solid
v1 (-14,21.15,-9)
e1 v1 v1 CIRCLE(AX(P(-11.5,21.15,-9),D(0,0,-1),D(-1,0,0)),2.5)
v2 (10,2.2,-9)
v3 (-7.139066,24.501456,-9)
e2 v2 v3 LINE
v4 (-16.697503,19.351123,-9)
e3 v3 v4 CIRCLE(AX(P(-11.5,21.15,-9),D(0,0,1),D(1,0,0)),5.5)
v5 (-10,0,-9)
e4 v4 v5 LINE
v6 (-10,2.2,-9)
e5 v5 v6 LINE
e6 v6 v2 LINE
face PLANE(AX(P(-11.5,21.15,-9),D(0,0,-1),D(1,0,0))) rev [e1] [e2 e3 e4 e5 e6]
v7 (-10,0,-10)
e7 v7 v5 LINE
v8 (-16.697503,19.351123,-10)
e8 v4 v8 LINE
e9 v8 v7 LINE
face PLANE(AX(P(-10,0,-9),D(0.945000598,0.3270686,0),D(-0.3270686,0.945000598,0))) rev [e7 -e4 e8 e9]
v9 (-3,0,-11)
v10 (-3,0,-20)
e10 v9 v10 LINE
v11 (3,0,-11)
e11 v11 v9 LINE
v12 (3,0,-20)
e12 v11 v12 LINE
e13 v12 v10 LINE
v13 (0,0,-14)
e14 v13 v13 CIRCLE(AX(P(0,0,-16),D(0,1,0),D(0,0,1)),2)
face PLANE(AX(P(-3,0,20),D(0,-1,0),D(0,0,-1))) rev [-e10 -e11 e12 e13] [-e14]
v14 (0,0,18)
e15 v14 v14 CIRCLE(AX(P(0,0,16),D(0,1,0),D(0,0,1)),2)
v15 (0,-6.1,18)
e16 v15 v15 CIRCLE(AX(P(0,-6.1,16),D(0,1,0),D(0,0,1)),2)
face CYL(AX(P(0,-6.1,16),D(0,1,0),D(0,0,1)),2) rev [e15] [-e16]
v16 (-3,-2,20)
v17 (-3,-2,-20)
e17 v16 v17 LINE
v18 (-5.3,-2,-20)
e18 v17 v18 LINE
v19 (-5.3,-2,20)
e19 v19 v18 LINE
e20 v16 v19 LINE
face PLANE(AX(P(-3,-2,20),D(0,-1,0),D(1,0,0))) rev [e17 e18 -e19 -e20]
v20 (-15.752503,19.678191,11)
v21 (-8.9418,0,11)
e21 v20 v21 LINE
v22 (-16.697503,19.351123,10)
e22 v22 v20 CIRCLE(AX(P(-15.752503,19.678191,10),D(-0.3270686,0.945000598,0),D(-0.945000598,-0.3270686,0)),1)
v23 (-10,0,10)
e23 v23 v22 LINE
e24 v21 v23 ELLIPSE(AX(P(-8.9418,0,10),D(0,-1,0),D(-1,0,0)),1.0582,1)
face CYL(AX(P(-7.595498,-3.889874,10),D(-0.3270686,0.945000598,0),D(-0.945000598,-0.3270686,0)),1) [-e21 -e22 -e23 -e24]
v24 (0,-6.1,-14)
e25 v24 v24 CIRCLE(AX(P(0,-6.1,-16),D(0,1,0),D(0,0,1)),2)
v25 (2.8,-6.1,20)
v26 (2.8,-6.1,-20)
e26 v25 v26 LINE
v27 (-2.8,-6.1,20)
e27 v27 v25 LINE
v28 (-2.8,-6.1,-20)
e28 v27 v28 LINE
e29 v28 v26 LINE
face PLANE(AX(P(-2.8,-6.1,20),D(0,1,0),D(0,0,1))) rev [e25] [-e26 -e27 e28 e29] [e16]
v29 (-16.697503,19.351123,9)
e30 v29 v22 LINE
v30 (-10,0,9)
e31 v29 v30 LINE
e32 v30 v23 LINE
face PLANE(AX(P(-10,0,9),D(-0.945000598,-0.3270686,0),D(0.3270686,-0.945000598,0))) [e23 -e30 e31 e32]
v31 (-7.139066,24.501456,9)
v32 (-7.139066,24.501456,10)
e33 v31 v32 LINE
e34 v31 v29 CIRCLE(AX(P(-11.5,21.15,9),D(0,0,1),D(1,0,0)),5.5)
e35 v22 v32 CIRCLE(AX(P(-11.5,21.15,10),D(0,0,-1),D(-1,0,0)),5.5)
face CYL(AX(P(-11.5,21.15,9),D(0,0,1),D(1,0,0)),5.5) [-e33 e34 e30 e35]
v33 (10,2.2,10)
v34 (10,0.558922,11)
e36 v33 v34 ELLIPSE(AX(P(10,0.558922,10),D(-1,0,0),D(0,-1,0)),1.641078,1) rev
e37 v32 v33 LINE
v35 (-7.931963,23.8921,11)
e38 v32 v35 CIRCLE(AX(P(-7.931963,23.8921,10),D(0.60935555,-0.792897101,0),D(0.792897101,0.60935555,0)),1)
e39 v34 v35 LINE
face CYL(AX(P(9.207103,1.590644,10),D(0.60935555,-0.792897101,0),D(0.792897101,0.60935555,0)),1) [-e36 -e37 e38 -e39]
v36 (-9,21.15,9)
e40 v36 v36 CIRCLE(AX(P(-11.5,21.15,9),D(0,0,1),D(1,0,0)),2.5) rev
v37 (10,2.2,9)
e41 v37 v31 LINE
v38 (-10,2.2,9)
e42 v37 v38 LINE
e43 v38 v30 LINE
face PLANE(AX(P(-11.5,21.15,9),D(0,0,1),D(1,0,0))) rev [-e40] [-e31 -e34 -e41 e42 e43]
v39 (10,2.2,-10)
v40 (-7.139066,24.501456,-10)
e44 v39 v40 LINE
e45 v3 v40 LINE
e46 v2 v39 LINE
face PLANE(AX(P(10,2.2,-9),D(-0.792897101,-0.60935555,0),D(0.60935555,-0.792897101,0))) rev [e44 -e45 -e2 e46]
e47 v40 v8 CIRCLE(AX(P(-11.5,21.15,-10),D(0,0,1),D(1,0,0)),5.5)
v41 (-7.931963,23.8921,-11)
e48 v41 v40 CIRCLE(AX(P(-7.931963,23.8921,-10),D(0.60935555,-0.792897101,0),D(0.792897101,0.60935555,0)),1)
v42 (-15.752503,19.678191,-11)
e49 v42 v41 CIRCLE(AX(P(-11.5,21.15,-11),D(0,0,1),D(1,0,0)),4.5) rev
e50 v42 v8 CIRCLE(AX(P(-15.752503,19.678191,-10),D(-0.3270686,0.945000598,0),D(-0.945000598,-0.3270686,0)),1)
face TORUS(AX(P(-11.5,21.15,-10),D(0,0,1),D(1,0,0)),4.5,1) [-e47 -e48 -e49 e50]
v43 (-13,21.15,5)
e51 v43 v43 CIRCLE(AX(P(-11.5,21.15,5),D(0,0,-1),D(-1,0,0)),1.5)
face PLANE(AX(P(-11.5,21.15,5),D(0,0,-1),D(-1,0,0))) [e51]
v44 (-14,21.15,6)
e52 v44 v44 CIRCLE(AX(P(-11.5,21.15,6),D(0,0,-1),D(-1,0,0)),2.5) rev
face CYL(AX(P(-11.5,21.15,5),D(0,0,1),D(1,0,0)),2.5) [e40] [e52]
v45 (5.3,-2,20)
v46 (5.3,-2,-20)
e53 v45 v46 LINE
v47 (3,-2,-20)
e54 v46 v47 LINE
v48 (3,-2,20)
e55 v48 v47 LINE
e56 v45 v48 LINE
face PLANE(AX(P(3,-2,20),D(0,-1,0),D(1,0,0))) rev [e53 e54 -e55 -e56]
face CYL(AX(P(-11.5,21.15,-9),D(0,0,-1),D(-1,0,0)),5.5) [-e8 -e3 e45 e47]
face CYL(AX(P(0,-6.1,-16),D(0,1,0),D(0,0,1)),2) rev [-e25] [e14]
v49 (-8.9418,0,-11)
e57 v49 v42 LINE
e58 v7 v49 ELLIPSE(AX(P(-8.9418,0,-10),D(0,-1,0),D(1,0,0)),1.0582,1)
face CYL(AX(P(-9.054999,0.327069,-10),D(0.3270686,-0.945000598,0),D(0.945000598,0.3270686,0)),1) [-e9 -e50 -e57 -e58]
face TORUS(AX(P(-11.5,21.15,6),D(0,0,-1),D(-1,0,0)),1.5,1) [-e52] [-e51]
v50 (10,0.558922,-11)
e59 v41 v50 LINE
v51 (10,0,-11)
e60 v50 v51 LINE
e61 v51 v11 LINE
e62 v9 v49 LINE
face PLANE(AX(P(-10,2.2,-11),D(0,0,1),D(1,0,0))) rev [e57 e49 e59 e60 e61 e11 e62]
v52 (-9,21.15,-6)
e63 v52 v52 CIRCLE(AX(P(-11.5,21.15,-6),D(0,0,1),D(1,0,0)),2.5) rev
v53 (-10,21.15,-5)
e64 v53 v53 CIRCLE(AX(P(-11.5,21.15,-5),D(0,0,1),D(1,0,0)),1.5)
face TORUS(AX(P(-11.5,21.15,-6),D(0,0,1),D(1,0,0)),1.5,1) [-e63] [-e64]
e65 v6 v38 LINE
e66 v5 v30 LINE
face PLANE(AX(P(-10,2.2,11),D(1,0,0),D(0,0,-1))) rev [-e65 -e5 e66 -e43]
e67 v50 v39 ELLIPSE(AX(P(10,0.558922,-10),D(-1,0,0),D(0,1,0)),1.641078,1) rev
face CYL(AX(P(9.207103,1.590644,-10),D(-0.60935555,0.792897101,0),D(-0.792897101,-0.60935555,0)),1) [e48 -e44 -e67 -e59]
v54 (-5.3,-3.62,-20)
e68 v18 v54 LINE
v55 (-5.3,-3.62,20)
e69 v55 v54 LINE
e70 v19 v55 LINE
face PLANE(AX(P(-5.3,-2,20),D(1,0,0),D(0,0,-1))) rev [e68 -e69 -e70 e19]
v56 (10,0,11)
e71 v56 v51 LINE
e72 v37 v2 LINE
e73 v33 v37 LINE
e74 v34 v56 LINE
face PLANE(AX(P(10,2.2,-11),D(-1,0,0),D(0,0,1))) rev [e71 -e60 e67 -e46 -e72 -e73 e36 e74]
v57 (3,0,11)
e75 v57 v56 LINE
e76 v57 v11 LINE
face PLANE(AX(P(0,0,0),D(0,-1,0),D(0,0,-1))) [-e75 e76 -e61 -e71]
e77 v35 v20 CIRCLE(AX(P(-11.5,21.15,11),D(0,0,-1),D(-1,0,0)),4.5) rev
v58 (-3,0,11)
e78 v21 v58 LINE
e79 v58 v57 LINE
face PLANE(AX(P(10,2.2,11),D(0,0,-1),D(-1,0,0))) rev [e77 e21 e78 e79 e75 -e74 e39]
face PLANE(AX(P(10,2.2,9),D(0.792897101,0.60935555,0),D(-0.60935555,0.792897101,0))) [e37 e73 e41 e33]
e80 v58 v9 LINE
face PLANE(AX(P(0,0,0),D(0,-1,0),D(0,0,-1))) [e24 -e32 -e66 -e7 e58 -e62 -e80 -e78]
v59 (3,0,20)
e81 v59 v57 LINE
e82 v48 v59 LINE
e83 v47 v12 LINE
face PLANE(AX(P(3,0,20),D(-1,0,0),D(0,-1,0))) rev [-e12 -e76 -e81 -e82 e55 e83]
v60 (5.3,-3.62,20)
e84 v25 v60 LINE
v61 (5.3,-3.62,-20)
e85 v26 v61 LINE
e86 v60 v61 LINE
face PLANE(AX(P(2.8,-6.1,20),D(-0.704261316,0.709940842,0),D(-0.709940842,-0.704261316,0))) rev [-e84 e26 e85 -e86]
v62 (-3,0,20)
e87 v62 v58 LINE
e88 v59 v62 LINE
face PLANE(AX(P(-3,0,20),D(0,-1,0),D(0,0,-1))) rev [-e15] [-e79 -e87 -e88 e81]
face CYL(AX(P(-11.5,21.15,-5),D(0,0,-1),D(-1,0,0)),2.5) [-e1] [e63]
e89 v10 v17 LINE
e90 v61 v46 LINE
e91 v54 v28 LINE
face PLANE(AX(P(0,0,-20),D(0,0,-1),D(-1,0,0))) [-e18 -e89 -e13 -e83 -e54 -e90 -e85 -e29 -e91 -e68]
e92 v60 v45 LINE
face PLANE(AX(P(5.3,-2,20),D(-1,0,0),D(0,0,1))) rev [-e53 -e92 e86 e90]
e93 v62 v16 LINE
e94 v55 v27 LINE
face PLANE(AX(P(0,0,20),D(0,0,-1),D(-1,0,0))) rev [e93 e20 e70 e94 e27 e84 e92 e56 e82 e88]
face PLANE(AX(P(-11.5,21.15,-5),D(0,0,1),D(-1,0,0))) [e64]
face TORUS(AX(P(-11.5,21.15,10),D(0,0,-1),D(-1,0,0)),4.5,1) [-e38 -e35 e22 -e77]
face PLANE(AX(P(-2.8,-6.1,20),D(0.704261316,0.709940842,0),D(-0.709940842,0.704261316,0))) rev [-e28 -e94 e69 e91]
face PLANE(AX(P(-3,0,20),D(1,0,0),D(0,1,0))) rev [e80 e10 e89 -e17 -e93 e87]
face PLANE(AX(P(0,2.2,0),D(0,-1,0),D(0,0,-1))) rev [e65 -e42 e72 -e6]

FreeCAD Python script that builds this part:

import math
import FreeCAD as App
import Part
import Sketcher
Q = App.Units.Quantity


def edges_at(feature, points):
    """Names of the edges that pass closest to the given points."""
    edges = feature.Shape.Edges
    near = lambda p: min(range(len(edges)), key=lambda i: edges[i].distToShape(Part.Vertex(*p))[0])
    return sorted({f"Edge{near(p) + 1}" for p in points})


def add_polygon(sketch, points):
    """Adds a closed chain of lines whose ends are joined by coincident constraints."""
    first, n = sketch.GeometryCount, len(points)
    for a, b in zip(points, points[1:] + points[:1]):
        sketch.addGeometry(Part.LineSegment(App.Vector(*a, 0), App.Vector(*b, 0)), False)
    for i in range(n):
        sketch.addConstraint(Sketcher.Constraint("Coincident", first + i, 2, first + (i + 1) % n, 1))

doc = App.newDocument("Part")
body = doc.addObject("PartDesign::Body", "Body")

sketch1 = doc.addObject("Sketcher::SketchObject", "Sketch")
body.addObject(sketch1)
sketch1.AttachmentSupport = (doc.XY_Plane, [""])
sketch1.MapMode = "FlatFace"
add_polygon(sketch1, [(3, 0), (-3, 0), (-3, -2), (-5.3, -2), (-5.3, -3.6), (-2.8, -6.1), (2.8, -6.1), (5.3, -3.6), (5.3, -2), (3, -2)])
sketch1.addConstraint([
    Sketcher.Constraint("Horizontal", 0),
    Sketcher.Constraint("Vertical", 1),
    Sketcher.Constraint("Horizontal", 2),
    Sketcher.Constraint("Vertical", 3),
    Sketcher.Constraint("Horizontal", 5),
    Sketcher.Constraint("Vertical", 7),
    Sketcher.Constraint("Horizontal", 8),
    Sketcher.Constraint("Vertical", 9),
    Sketcher.Constraint("Symmetric", 0, 2, 9, 2, -1, 1),
    Sketcher.Constraint("Symmetric", 3, 2, 6, 2, -2),
    Sketcher.Constraint("Horizontal", 2, 2, 7, 2),
    Sketcher.Constraint("Equal", 4, 6),
    Sketcher.Constraint("DistanceX", 0, 2, 0, 1, Q("6 mm")),
    Sketcher.Constraint("DistanceY", 1, 2, 1, 1, Q("2 mm")),
    Sketcher.Constraint("DistanceX", 2, 2, 2, 1, Q("2.3 mm")),
    Sketcher.Constraint("DistanceX", 5, 1, 5, 2, Q("5.6 mm")),
    Sketcher.Constraint("DistanceY", 3, 2, 3, 1, Q("1.62 mm")),
    Sketcher.Constraint("DistanceY", 4, 2, -1, 1, Q("6.1 mm")),
])
pad1 = doc.addObject("PartDesign::Pad", "Pad")
body.addObject(pad1)
pad1.Profile = sketch1
pad1.Length = 40
pad1.Midplane = True

sketch2 = doc.addObject("Sketcher::SketchObject", "Sketch001")
body.addObject(sketch2)
sketch2.AttachmentSupport = (doc.XZ_Plane, [""])
sketch2.MapMode = "FlatFace"
add_polygon(sketch2, [(-10, -11), (-10, 11), (10, 11), (10, -11)])
sketch2.addConstraint([
    Sketcher.Constraint("Vertical", 0),
    Sketcher.Constraint("Horizontal", 1),
    Sketcher.Constraint("Vertical", 2),
    Sketcher.Constraint("Horizontal", 3),
    Sketcher.Constraint("Symmetric", 0, 2, 2, 2, -1, 1),
    Sketcher.Constraint("DistanceX", 1, 1, 1, 2, Q("20 mm")),
    Sketcher.Constraint("DistanceY", 0, 1, 0, 2, Q("22 mm")),
])
pad2 = doc.addObject("PartDesign::Pad", "Pad001")
body.addObject(pad2)
pad2.Profile = sketch2
pad2.Length = 2.2
pad2.Reversed = True

sketch3 = doc.addObject("Sketcher::SketchObject", "Sketch002")
body.addObject(sketch3)
sketch3.AttachmentSupport = (doc.XY_Plane, [""])
sketch3.MapMode = "FlatFace"
sketch3.AttachmentOffset = App.Placement(App.Vector(0, 0, 11), App.Rotation())
sketch3.addGeometry([
    Part.LineSegment(App.Vector(10, 0, 0), App.Vector(10, 2.2, 0)),
    Part.LineSegment(App.Vector(10, 2.2, 0), App.Vector(-7.1, 24.5, 0)),
    Part.ArcOfCircle(Part.Circle(App.Vector(-11.5, 21.1, 0), App.Vector(0, 0, 1), 5.5), math.radians(38), math.radians(199)),
    Part.LineSegment(App.Vector(-16.7, 19.4, 0), App.Vector(-10, 0, 0)),
    Part.LineSegment(App.Vector(-10, 0, 0), App.Vector(10, 0, 0)),
], False)
sketch3.addConstraint([
    Sketcher.Constraint("Coincident", 0, 2, 1, 1),
    Sketcher.Constraint("Tangent", 1, 2, 2, 1),
    Sketcher.Constraint("Tangent", 2, 2, 3, 1),
    Sketcher.Constraint("Coincident", 3, 2, 4, 1),
    Sketcher.Constraint("Coincident", 4, 2, 0, 1),
    Sketcher.Constraint("Vertical", 0),
    Sketcher.Constraint("Horizontal", 4),
    Sketcher.Constraint("Symmetric", 3, 2, 4, 2, -1, 1),
    Sketcher.Constraint("Radius", 2, Q("5.5 mm")),
    Sketcher.Constraint("DistanceX", 4, 1, 4, 2, Q("20 mm")),
    Sketcher.Constraint("DistanceY", 0, 1, 0, 2, Q("2.2 mm")),
    Sketcher.Constraint("DistanceX", 2, 3, -1, 1, Q("11.5 mm")),
    Sketcher.Constraint("DistanceY", -1, 1, 2, 3, Q("21.15 mm")),
])
pad3 = doc.addObject("PartDesign::Pad", "Pad002")
body.addObject(pad3)
pad3.Profile = sketch3
pad3.Length = 2
pad3.Reversed = True

sketch4 = doc.addObject("Sketcher::SketchObject", "Sketch003")
body.addObject(sketch4)
sketch4.AttachmentSupport = (doc.XY_Plane, [""])
sketch4.MapMode = "FlatFace"
sketch4.AttachmentOffset = App.Placement(App.Vector(0, 0, 9), App.Rotation())
sketch4.addGeometry(Part.Circle(App.Vector(-11.5, 21.1, 0), App.Vector(0, 0, 1), 2.5), False)
sketch4.addConstraint([
    Sketcher.Constraint("Diameter", 0, Q("5 mm")),
    Sketcher.Constraint("DistanceX", 0, 3, -1, 1, Q("11.5 mm")),
    Sketcher.Constraint("DistanceY", -1, 1, 0, 3, Q("21.15 mm")),
])
pad4 = doc.addObject("PartDesign::Pad", "Pad003")
body.addObject(pad4)
pad4.Profile = sketch4
pad4.Length = 4
pad4.Reversed = True
doc.recompute()

fillet = doc.addObject("PartDesign::Fillet", "Fillet")
body.addObject(fillet)
fillet.Base = (pad4, edges_at(pad4, [(-14, 21.15, 5)]))
fillet.Radius = 1
doc.recompute()

fillet2 = doc.addObject("PartDesign::Fillet", "Fillet001")
body.addObject(fillet2)
fillet2.Base = (fillet, edges_at(fillet, [(1.43, 13.351, 11), (-14.109, 25.992, 11), (-13.349, 9.676, 11)]))
fillet2.Radius = 1
doc.recompute()

mirrored = doc.addObject("PartDesign::Mirrored", "Mirrored")
body.addObject(mirrored)
mirrored.Originals = [pad3, pad4]
mirrored.MirrorPlane = (doc.XY_Plane, [""])
body.Tip = mirrored
doc.recompute()

fillet3 = doc.addObject("PartDesign::Fillet", "Fillet002")
body.addObject(fillet3)
fillet3.Base = (mirrored, edges_at(mirrored, [(-14, 21.15, -5)]))
fillet3.Radius = 1
doc.recompute()

fillet4 = doc.addObject("PartDesign::Fillet", "Fillet003")
body.addObject(fillet4)
fillet4.Base = (fillet3, edges_at(fillet3, [(1.43, 13.351, -11), (-14.109, 25.992, -11), (-13.349, 9.676, -11)]))
fillet4.Radius = 1

sketch5 = doc.addObject("Sketcher::SketchObject", "Sketch004")
body.addObject(sketch5)
sketch5.AttachmentSupport = (doc.XZ_Plane, [""])
sketch5.MapMode = "FlatFace"
sketch5.addGeometry([
    Part.Circle(App.Vector(0, -16, 0), App.Vector(0, 0, 1), 2),
    Part.Circle(App.Vector(0, 16, 0), App.Vector(0, 0, 1), 2),
], False)
sketch5.addConstraint([
    Sketcher.Constraint("Equal", 0, 1),
    Sketcher.Constraint("Symmetric", 0, 3, 1, 3, -1, 1),
    Sketcher.Constraint("PointOnObject", 0, 3, -2),
    Sketcher.Constraint("Diameter", 0, Q("4 mm")),
    Sketcher.Constraint("DistanceY", 0, 3, -1, 1, Q("16 mm")),
])
pocket1 = doc.addObject("PartDesign::Pocket", "Pocket")
body.addObject(pocket1)
pocket1.Profile = sketch5
pocket1.Type = "ThroughAll"
pocket1.Reversed = True

doc.recompute()
